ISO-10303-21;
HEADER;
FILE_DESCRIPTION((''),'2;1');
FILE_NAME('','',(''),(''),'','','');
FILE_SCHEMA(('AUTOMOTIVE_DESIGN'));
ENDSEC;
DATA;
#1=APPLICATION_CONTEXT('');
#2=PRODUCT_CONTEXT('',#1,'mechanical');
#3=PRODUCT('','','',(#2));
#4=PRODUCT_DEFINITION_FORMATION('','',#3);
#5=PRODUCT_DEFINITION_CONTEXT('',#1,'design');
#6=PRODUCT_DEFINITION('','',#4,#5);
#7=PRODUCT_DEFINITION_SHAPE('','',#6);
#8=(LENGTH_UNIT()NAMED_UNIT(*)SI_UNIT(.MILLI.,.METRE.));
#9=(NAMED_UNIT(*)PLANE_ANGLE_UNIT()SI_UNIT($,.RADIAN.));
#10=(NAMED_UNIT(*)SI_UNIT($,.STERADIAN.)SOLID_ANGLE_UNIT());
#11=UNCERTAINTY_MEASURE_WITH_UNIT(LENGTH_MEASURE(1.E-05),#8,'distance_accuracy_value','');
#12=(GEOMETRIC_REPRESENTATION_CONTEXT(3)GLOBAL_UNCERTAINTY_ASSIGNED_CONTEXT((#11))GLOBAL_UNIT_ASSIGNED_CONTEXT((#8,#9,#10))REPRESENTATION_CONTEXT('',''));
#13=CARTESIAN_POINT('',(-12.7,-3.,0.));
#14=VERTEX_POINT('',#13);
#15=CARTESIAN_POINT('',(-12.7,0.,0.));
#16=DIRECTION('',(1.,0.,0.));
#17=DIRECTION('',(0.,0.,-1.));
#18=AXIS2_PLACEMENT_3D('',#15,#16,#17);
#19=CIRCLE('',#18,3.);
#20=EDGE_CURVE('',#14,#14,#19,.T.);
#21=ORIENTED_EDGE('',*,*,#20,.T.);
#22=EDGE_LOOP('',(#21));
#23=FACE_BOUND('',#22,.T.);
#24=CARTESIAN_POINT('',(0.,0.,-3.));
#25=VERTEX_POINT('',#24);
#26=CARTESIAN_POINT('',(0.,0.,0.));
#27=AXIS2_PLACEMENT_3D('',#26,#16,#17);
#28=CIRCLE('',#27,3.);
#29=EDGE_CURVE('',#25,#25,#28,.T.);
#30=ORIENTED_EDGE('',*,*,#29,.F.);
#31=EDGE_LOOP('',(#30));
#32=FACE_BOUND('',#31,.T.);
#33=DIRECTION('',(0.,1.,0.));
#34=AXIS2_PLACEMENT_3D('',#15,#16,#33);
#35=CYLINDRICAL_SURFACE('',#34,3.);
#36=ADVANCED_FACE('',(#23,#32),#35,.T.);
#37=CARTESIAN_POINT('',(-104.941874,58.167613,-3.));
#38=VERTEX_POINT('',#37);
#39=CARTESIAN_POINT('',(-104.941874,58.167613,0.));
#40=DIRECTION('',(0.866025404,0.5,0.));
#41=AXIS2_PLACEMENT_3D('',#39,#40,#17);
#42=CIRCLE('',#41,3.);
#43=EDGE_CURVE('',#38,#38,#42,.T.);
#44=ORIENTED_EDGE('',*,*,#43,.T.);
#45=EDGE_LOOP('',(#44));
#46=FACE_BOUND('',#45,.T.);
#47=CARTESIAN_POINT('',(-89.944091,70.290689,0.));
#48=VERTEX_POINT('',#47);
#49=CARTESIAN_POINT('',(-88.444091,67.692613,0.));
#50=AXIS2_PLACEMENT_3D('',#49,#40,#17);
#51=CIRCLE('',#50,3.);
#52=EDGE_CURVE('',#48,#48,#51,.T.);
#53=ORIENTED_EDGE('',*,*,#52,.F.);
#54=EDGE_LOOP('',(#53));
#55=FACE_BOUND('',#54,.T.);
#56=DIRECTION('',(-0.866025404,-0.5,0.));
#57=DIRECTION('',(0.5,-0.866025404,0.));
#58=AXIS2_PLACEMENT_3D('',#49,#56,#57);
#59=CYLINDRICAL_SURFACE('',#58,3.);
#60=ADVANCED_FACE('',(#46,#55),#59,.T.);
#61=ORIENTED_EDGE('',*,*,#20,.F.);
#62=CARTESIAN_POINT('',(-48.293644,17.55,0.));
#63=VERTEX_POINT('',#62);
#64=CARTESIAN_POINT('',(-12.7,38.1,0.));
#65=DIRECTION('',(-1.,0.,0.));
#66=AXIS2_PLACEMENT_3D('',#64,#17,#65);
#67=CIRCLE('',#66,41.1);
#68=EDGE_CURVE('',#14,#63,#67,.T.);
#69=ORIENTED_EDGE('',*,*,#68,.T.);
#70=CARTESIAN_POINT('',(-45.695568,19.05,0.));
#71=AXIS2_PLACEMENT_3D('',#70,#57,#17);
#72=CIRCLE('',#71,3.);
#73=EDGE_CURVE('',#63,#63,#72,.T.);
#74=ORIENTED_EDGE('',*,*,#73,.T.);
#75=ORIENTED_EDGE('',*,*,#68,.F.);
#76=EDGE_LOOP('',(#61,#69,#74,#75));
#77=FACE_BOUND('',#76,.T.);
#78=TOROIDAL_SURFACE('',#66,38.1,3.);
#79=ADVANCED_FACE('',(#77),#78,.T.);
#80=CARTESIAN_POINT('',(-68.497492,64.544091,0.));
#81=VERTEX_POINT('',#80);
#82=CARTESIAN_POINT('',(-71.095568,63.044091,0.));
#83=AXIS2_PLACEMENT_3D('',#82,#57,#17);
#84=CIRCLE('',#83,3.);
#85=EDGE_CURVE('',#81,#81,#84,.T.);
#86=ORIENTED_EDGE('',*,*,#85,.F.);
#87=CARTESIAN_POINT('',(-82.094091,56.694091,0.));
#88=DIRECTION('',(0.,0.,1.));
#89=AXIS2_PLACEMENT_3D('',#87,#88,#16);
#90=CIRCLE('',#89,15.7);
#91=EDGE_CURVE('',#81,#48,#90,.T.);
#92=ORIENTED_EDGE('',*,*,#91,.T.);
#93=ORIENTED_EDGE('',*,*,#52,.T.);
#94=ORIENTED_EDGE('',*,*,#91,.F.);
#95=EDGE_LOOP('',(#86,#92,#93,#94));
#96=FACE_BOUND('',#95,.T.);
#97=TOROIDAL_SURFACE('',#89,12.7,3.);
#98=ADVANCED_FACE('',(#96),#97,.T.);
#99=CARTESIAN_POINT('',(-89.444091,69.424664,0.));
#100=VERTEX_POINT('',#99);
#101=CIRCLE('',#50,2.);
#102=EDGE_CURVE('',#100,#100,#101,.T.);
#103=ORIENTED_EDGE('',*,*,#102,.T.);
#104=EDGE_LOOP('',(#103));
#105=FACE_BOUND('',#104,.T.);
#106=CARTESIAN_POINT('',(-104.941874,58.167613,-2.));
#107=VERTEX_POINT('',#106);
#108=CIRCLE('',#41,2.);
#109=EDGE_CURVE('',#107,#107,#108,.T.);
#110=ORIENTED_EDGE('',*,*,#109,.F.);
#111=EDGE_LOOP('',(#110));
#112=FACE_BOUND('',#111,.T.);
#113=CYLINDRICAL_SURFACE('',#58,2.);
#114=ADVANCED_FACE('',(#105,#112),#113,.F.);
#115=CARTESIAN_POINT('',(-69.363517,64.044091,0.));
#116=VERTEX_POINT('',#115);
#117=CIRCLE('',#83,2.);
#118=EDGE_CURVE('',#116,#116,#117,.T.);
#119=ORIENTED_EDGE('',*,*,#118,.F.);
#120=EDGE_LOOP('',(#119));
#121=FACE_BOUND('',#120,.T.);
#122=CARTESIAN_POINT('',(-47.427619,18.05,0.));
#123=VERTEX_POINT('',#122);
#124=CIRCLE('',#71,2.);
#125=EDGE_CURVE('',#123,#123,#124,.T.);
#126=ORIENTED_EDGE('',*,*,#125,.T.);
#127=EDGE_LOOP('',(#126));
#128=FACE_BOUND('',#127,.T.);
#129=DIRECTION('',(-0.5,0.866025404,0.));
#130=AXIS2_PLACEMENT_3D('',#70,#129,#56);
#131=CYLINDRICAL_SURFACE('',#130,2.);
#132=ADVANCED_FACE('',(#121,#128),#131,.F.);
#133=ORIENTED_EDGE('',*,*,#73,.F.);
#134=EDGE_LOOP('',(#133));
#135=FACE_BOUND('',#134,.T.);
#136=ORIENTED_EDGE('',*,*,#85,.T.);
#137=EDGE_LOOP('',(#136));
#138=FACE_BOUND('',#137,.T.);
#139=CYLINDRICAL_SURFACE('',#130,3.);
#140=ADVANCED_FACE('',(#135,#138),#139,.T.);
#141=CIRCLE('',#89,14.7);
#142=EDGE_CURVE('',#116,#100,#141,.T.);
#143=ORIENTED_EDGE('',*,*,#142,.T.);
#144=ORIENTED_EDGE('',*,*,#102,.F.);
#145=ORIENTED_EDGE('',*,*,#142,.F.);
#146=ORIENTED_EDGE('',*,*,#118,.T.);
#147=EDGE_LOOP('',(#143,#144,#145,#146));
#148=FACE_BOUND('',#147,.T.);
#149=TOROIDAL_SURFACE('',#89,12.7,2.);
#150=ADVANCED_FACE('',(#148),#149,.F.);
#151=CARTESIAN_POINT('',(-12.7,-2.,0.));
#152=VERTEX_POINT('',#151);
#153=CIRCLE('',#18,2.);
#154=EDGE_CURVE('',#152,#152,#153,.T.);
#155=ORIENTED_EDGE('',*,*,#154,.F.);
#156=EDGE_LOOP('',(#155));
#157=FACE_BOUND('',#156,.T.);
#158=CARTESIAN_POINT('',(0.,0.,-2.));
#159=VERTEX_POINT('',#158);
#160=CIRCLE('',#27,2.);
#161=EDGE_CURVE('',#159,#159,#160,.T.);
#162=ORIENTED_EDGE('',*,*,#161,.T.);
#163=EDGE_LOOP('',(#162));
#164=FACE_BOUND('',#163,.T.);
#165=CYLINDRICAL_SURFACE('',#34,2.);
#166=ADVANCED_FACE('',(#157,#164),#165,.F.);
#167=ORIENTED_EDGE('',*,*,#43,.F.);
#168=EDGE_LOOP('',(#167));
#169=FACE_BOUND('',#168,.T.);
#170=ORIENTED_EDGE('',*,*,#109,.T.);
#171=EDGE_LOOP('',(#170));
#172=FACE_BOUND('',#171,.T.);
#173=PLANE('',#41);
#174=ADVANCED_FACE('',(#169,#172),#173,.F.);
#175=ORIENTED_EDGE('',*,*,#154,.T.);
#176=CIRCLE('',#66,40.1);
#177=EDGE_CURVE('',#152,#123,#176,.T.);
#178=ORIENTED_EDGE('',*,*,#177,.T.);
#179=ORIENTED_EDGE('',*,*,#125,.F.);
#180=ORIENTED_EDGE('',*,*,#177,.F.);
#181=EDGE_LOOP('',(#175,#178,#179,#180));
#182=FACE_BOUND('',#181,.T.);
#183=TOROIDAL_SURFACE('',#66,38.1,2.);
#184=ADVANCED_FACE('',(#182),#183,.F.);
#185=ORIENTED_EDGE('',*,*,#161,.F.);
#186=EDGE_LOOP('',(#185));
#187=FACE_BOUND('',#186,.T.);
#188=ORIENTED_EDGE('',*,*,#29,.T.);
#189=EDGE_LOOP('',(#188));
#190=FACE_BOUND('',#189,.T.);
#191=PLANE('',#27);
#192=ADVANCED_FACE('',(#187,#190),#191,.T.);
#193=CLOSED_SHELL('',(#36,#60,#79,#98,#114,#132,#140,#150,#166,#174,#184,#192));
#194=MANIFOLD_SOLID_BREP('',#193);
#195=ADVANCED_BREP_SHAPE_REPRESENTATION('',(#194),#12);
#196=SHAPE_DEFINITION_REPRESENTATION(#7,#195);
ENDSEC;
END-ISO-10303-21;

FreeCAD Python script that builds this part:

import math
import FreeCAD as App
import Part
import Sketcher
from FreeCAD import Vector
Q = App.Units.Quantity

doc = App.newDocument("Part")
params = doc.addObject("Spreadsheet::Sheet", "Params")
for row, (alias, value) in enumerate([
    ("sketch2_radius", "1.5 in"),
    ("sketch2_radius2", "0.5 in"),
    ("sketch2_length", "2 in"),
    ("sketch2_width", "0.5 in"),
    ("sketch2_length2", "0.75 in"),
], start=1):
    params.set(f"A{row}", alias)
    params.set(f"B{row}", "=" + value)
    params.setAlias(f"B{row}", alias)

body = doc.addObject("PartDesign::Body", "Body")

sketch1 = body.newObject("Sketcher::SketchObject", "Sketch")
sketch1.AttachmentSupport = (doc.getObject("YZ_Plane"), [""])
sketch1.MapMode = "FlatFace"
sketch1.addGeometry(Part.Circle(Vector(0, 0, 0), Vector(0, 0, 1), 3), False)
sketch1.addGeometry(Part.Circle(Vector(0, 0, 0), Vector(0, 0, 1), 2), False)
sketch1.addConstraint(Sketcher.Constraint("Coincident", 0, 3, -1, 1))
sketch1.addConstraint(Sketcher.Constraint("Coincident", 1, 3, -1, 1))
sketch1.addConstraint(Sketcher.Constraint("Diameter", 0, 6.0))
sketch1.addConstraint(Sketcher.Constraint("Diameter", 1, 4.0))

sketch2 = body.newObject("Sketcher::SketchObject", "Sketch001")
sketch2.AttachmentSupport = (doc.getObject("XY_Plane"), [""])
sketch2.MapMode = "FlatFace"
sketch2.addGeometry(Part.LineSegment(Vector(0, 0, 0), Vector(-12.7, 0, 0)), False)
sketch2.addGeometry(Part.ArcOfCircle(Part.Circle(Vector(-12.7, 38.1, 0), Vector(0, 0, 1), 38.1), math.radians(-150), math.radians(-90)), False)
sketch2.addGeometry(Part.LineSegment(Vector(-45.695568, 19.05, 0), Vector(-71.095568, 63.044091, 0)), False)
sketch2.addGeometry(Part.ArcOfCircle(Part.Circle(Vector(-82.094091, 56.694091, 0), Vector(0, 0, 1), 12.7), math.radians(30), math.radians(120)), False)
sketch2.addGeometry(Part.LineSegment(Vector(-88.444091, 67.692613, 0), Vector(-104.941874, 58.167613, 0)), False)
sketch2.addConstraint(Sketcher.Constraint("Tangent", 0, 2, 1, 2))
sketch2.addConstraint(Sketcher.Constraint("Tangent", 1, 1, 2, 1))
sketch2.addConstraint(Sketcher.Constraint("Tangent", 2, 2, 3, 1))
sketch2.addConstraint(Sketcher.Constraint("Tangent", 3, 2, 4, 1))
sketch2.addConstraint(Sketcher.Constraint("Horizontal", 0))
sketch2.addConstraint(Sketcher.Constraint("Coincident", 0, 1, -1, 1))
sketch2.addConstraint(Sketcher.Constraint("Perpendicular", 2, 4))
sketch2.addConstraint(Sketcher.Constraint("Radius", 1, Q("1.5 in")))
sketch2.addConstraint(Sketcher.Constraint("Radius", 3, Q("0.5 in")))
sketch2.addConstraint(Sketcher.Constraint("Distance", 2, Q("2 in")))
sketch2.addConstraint(Sketcher.Constraint("DistanceX", 0, 2, 0, 1, Q("0.5 in")))
sketch2.addConstraint(Sketcher.Constraint("Angle", 2, Q("120 deg")))
sketch2.addConstraint(Sketcher.Constraint("Distance", 4, Q("0.75 in")))
sketch2.setExpression("Constraints[7]", "Params.sketch2_radius")
sketch2.setExpression("Constraints[8]", "Params.sketch2_radius2")
sketch2.setExpression("Constraints[9]", "Params.sketch2_length")
sketch2.setExpression("Constraints[10]", "Params.sketch2_width")
sketch2.setExpression("Constraints[12]", "Params.sketch2_length2")
doc.recompute()

additivepipe = body.newObject("PartDesign::AdditivePipe", "AdditivePipe")
additivepipe.Profile = sketch1
additivepipe.Spine = (sketch2, ["Edge1", "Edge2", "Edge3", "Edge4", "Edge5"])

doc.recompute()
